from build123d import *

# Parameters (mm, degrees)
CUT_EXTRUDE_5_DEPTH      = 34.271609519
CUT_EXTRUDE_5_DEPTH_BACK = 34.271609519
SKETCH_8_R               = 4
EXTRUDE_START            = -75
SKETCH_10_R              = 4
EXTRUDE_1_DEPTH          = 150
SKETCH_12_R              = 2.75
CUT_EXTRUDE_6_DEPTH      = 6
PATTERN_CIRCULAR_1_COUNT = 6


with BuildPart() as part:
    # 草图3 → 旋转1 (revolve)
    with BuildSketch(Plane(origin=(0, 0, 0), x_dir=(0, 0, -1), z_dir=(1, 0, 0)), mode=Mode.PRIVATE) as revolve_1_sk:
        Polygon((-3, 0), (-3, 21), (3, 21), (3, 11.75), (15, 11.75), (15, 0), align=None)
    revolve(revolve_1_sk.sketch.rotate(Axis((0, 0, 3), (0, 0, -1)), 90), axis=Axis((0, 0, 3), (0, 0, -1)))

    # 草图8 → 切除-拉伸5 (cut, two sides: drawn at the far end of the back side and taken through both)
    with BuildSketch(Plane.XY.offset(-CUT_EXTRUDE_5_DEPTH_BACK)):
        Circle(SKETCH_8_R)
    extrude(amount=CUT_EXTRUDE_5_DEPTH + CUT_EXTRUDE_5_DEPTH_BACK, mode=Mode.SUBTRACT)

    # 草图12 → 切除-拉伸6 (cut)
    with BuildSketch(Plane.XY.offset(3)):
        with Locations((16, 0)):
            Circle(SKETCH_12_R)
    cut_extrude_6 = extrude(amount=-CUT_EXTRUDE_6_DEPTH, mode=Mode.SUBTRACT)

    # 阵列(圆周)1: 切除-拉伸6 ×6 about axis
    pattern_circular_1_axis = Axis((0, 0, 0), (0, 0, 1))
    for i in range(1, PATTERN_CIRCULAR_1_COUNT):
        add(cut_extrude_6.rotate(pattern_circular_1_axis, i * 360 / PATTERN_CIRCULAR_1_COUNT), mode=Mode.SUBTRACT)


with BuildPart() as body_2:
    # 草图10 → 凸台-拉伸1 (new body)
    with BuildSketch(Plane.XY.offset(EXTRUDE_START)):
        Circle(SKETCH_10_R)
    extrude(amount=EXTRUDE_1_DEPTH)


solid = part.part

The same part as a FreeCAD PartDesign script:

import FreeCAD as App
import Part
import Sketcher

V = App.Vector
Q = App.Units.Quantity

doc = App.newDocument("Part")
body = doc.addObject("PartDesign::Body", "Body")

# Sketch on YZ plane
sketch1 = doc.addObject("Sketcher::SketchObject", "Sketch")
body.addObject(sketch1)
sketch1.AttachmentSupport = (doc.YZ_Plane, [""])
sketch1.MapMode = "FlatFace"
sketch1.addGeometry([
    Part.LineSegment(V(21, 3, 0), V(0, 3, 0)),  # 0
    Part.LineSegment(V(0, 3, 0), V(0, -15, 0)),  # 1
    Part.LineSegment(V(0, -15, 0), V(12, -15, 0)),  # 2
    Part.LineSegment(V(12, -15, 0), V(12, -3, 0)),  # 3
    Part.LineSegment(V(12, -3, 0), V(21, -3, 0)),  # 4
    Part.LineSegment(V(21, -3, 0), V(21, 3, 0)),  # 5
], False)
sketch1.addConstraint([
    Sketcher.Constraint("Coincident", 0, 2, 1, 1),
    Sketcher.Constraint("Coincident", 1, 2, 2, 1),
    Sketcher.Constraint("Coincident", 2, 2, 3, 1),
    Sketcher.Constraint("Coincident", 3, 2, 4, 1),
    Sketcher.Constraint("Coincident", 4, 2, 5, 1),
    Sketcher.Constraint("Coincident", 5, 2, 0, 1),
    Sketcher.Constraint("Horizontal", 0),
    Sketcher.Constraint("Vertical", 1),
    Sketcher.Constraint("Horizontal", 2),
    Sketcher.Constraint("Vertical", 3),
    Sketcher.Constraint("Horizontal", 4),
    Sketcher.Constraint("Vertical", 5),
    Sketcher.Constraint("PointOnObject", 0, 2, -2),
    Sketcher.Constraint("DistanceX", 0, 2, 0, 1, Q("21 mm")),
    Sketcher.Constraint("DistanceY", 1, 2, 1, 1, Q("18 mm")),
    Sketcher.Constraint("DistanceY", 3, 1, 3, 2, Q("12 mm")),
    Sketcher.Constraint("DistanceY", -1, 1, 0, 2, Q("3 mm")),
    Sketcher.Constraint("DistanceX", 2, 1, 2, 2, Q("11.75 mm")),
])
revolution = doc.addObject("PartDesign::Revolution", "Revolution")
body.addObject(revolution)
revolution.Profile = sketch1
revolution.ReferenceAxis = (sketch1, ["V_Axis"])
revolution.Angle = 360

# Sketch on XY plane
sketch2 = doc.addObject("Sketcher::SketchObject", "Sketch001")
body.addObject(sketch2)
sketch2.AttachmentSupport = (doc.XY_Plane, [""])
sketch2.MapMode = "FlatFace"
sketch2.addGeometry(Part.Circle(V(0, 0, 0), V(0, 0, 1), 4), False)
sketch2.addConstraint([
    Sketcher.Constraint("Coincident", 0, 3, -1, 1),
    Sketcher.Constraint("Diameter", 0, Q("8 mm")),
])
pocket1 = doc.addObject("PartDesign::Pocket", "Pocket")
body.addObject(pocket1)
pocket1.Profile = sketch2
pocket1.Type = "ThroughAll"
pocket1.Midplane = True

# Sketch on XY plane
sketch3 = doc.addObject("Sketcher::SketchObject", "Sketch002")
body.addObject(sketch3)
sketch3.AttachmentSupport = (doc.XY_Plane, [""])
sketch3.MapMode = "FlatFace"
sketch3.AttachmentOffset = App.Placement(V(0, 0, 3), App.Rotation())
sketch3.addGeometry(Part.Circle(V(16, 0, 0), V(0, 0, 1), 2.8), False)
sketch3.addConstraint([
    Sketcher.Constraint("PointOnObject", 0, 3, -1),
    Sketcher.Constraint("Diameter", 0, Q("5.5 mm")),
    Sketcher.Constraint("DistanceX", -1, 1, 0, 3, Q("16 mm")),
])
pocket2 = doc.addObject("PartDesign::Pocket", "Pocket001")
body.addObject(pocket2)
pocket2.Profile = sketch3
pocket2.Length = 6
doc.recompute()

polarpattern = doc.addObject("PartDesign::PolarPattern", "PolarPattern")
body.addObject(polarpattern)
polarpattern.Originals = [pocket2]
polarpattern.Axis = (doc.Z_Axis, [""])
polarpattern.Angle = 360
polarpattern.Occurrences = 6
body.Tip = polarpattern
body2 = doc.addObject("PartDesign::Body", "Body001")

# Sketch on XY plane
sketch4 = doc.addObject("Sketcher::SketchObject", "Sketch003")
body2.addObject(sketch4)
sketch4.AttachmentSupport = (doc.getObject("XY_Plane001"), [""])
sketch4.MapMode = "FlatFace"
sketch4.AttachmentOffset = App.Placement(V(0, 0, -75), App.Rotation())
sketch4.addGeometry(Part.Circle(V(0, 0, 0), V(0, 0, 1), 4), False)
sketch4.addConstraint([
    Sketcher.Constraint("Coincident", 0, 3, -1, 1),
    Sketcher.Constraint("Diameter", 0, Q("8 mm")),
])
pad1 = doc.addObject("PartDesign::Pad", "Pad")
body2.addObject(pad1)
pad1.Profile = sketch4
pad1.Length = 150
body2.Visibility = False

doc.recompute()
